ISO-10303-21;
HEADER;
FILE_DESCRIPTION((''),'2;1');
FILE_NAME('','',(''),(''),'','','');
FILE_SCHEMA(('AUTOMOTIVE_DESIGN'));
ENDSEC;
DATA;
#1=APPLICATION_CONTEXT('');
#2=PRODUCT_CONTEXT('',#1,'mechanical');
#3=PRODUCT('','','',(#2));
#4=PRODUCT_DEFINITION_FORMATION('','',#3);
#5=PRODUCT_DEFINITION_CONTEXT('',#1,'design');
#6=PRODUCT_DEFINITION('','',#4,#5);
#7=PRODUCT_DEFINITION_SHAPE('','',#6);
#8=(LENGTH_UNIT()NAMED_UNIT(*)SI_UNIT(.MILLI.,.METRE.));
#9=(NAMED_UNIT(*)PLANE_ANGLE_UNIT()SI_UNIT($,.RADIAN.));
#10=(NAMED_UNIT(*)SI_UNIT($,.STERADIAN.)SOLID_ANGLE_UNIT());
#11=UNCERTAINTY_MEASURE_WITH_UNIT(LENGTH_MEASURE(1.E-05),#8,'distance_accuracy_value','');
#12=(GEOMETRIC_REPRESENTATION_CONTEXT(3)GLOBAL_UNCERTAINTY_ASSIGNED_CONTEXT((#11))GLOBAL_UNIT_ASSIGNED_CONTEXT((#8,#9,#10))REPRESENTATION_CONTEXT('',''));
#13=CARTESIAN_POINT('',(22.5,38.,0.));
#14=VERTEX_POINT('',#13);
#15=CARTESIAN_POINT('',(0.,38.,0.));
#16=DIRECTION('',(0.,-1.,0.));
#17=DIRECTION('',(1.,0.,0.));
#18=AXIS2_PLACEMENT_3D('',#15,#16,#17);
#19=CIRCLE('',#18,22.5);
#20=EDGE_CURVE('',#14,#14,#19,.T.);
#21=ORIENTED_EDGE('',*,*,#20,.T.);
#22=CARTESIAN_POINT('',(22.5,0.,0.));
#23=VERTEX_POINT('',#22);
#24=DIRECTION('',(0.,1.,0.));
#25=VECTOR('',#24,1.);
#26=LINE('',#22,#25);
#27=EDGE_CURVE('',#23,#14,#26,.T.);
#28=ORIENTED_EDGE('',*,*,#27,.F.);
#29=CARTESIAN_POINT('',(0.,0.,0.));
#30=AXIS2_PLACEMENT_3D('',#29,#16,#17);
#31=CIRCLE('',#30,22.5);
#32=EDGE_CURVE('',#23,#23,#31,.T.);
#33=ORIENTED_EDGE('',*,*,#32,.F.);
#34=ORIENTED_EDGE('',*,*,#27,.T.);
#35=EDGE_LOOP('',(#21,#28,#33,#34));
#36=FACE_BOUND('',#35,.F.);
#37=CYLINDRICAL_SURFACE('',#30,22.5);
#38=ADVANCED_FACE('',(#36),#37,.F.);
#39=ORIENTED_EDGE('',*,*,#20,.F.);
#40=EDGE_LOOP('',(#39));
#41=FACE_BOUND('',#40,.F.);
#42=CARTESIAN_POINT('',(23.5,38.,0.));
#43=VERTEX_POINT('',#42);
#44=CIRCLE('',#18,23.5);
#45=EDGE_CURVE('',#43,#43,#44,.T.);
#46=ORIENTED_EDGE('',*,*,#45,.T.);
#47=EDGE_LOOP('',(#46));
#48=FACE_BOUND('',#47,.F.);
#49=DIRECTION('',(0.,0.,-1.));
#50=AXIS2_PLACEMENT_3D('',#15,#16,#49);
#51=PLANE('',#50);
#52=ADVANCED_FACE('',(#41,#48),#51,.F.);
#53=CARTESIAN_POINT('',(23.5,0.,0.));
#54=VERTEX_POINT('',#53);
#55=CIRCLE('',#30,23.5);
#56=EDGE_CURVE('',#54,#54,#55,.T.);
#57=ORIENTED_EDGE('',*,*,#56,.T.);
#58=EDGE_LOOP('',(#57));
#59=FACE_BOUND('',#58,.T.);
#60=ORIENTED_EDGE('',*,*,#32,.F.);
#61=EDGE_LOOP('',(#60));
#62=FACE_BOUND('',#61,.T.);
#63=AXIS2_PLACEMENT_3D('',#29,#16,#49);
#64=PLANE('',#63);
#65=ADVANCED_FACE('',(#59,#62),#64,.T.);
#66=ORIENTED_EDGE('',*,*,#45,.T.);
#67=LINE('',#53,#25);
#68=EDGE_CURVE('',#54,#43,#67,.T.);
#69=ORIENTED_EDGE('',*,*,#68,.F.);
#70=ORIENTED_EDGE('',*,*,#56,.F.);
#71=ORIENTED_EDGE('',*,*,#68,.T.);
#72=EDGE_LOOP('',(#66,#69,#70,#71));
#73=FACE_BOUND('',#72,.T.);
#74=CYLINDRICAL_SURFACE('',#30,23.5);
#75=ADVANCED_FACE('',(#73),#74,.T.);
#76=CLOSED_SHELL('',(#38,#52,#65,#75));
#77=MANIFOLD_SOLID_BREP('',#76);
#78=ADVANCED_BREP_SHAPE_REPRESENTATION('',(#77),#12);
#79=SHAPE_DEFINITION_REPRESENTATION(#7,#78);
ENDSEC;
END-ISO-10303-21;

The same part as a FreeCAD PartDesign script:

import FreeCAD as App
import Part
import Sketcher
Q = App.Units.Quantity

doc = App.newDocument("Part")
params = doc.addObject("Spreadsheet::Sheet", "Params")
for row, (alias, value) in enumerate([
    ("sketch1_diameter", "47 mm"),
    ("sketch1_diameter2", "45 mm"),
    ("pad1_length", "38 mm"),
], start=1):
    params.set(f"A{row}", alias)
    params.set(f"B{row}", "=" + value)
    params.setAlias(f"B{row}", alias)

body = doc.addObject("PartDesign::Body", "Body")

# Sketch on XZ plane
sketch1 = body.newObject("Sketcher::SketchObject", "Sketch")
sketch1.AttachmentSupport = (doc.getObject("XZ_Plane"), [""])
sketch1.MapMode = "FlatFace"
sketch1.addGeometry([
    Part.Circle(App.Vector(0, 0, 0), App.Vector(0, 0, 1), 23.5),
    Part.Circle(App.Vector(0, 0, 0), App.Vector(0, 0, 1), 22.5),
], False)
sketch1.addConstraint([
    Sketcher.Constraint("Coincident", 0, 3, -1, 1),
    Sketcher.Constraint("Coincident", 1, 3, -1, 1),
    Sketcher.Constraint("Diameter", 0, Q("47 mm")),
    Sketcher.Constraint("Diameter", 1, Q("45 mm")),
])
sketch1.setExpression("Constraints[2]", "Params.sketch1_diameter")
sketch1.setExpression("Constraints[3]", "Params.sketch1_diameter2")
pad1 = body.newObject("PartDesign::Pad", "Pad")
pad1.Profile = sketch1
pad1.setExpression("Length", "Params.pad1_length")
pad1.Reversed = True

doc.recompute()
